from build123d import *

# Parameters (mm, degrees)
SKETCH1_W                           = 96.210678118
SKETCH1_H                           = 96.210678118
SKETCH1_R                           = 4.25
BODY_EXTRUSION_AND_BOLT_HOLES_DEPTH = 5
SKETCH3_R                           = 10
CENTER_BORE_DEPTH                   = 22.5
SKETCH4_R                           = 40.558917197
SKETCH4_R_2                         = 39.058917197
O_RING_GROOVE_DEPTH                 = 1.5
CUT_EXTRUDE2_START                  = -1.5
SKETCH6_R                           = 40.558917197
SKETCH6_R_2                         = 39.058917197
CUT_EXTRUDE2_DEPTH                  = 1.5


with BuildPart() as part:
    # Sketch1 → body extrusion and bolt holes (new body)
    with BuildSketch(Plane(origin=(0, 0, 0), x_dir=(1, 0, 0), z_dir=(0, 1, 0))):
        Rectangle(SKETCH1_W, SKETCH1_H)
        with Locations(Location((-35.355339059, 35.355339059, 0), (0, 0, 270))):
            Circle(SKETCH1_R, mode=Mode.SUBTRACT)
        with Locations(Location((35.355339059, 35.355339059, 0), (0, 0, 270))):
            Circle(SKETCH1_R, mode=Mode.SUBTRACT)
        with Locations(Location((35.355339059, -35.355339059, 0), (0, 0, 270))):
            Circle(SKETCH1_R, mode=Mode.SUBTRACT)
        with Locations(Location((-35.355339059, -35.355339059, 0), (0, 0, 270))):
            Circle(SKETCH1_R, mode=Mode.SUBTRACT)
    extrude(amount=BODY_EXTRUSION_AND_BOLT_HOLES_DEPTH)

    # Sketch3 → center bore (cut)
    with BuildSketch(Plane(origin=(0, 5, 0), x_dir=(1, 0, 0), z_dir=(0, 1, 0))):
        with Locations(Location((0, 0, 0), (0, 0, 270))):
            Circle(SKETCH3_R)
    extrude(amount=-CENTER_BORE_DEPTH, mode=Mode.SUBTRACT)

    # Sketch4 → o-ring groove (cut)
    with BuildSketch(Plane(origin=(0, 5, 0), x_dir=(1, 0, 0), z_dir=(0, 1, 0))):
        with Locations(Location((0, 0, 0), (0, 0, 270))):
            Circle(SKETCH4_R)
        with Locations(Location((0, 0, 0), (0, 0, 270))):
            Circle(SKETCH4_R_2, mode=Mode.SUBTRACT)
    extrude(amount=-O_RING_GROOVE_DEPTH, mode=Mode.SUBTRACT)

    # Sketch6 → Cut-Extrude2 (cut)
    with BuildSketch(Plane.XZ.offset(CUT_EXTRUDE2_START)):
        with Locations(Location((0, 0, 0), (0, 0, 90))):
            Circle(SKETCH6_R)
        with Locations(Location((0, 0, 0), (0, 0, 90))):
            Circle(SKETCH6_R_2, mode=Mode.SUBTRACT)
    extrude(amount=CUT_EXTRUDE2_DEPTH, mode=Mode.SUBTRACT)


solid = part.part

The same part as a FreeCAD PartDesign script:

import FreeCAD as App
import Part
import Sketcher

doc = App.newDocument("Part")
body = doc.addObject("PartDesign::Body", "Body")

# Sketch on XZ plane
sketch1 = body.newObject("Sketcher::SketchObject", "Sketch")
sketch1.AttachmentSupport = (doc.getObject("XZ_Plane"), [""])
sketch1.MapMode = "FlatFace"
sketch1.addGeometry(Part.LineSegment(App.Vector(-48.1, -48.1, 0), App.Vector(-48.1, 48.1, 0)), False)
sketch1.addGeometry(Part.LineSegment(App.Vector(-48.1, 48.1, 0), App.Vector(48.1, 48.1, 0)), False)
sketch1.addGeometry(Part.LineSegment(App.Vector(48.1, 48.1, 0), App.Vector(48.1, -48.1, 0)), False)
sketch1.addGeometry(Part.LineSegment(App.Vector(48.1, -48.1, 0), App.Vector(-48.1, -48.1, 0)), False)
sketch1.addGeometry(Part.Circle(App.Vector(-35.4, 35.4, 0), App.Vector(0, 0, 1), 4.2), False)
sketch1.addGeometry(Part.Circle(App.Vector(35.4, 35.4, 0), App.Vector(0, 0, 1), 4.2), False)
sketch1.addGeometry(Part.Circle(App.Vector(-35.4, -35.4, 0), App.Vector(0, 0, 1), 4.2), False)
sketch1.addGeometry(Part.Circle(App.Vector(35.4, -35.4, 0), App.Vector(0, 0, 1), 4.2), False)
sketch1.addConstraint(Sketcher.Constraint("Coincident", 0, 2, 1, 1))
sketch1.addConstraint(Sketcher.Constraint("Coincident", 1, 2, 2, 1))
sketch1.addConstraint(Sketcher.Constraint("Coincident", 2, 2, 3, 1))
sketch1.addConstraint(Sketcher.Constraint("Coincident", 3, 2, 0, 1))
sketch1.addConstraint(Sketcher.Constraint("Vertical", 0))
sketch1.addConstraint(Sketcher.Constraint("Horizontal", 1))
sketch1.addConstraint(Sketcher.Constraint("Vertical", 2))
sketch1.addConstraint(Sketcher.Constraint("Horizontal", 3))
sketch1.addConstraint(Sketcher.Constraint("Equal", 4, 5))
sketch1.addConstraint(Sketcher.Constraint("Equal", 5, 6))
sketch1.addConstraint(Sketcher.Constraint("Equal", 6, 7))
sketch1.addConstraint(Sketcher.Constraint("Symmetric", 5, 3, 6, 3, -1, 1))
sketch1.addConstraint(Sketcher.Constraint("Symmetric", 4, 3, 7, 3, -1, 1))
sketch1.addConstraint(Sketcher.Constraint("Symmetric", 0, 2, 2, 2, -1, 1))
sketch1.addConstraint(Sketcher.Constraint("Symmetric", 4, 3, 5, 3, -2))
sketch1.addConstraint(Sketcher.Constraint("Equal", 3, 0))
sketch1.addConstraint(Sketcher.Constraint("Diameter", 4, 8.5))
sketch1.addConstraint(Sketcher.Constraint("DistanceX", 0, 2, 4, 3, 12.75))
sketch1.addConstraint(Sketcher.Constraint("DistanceY", 4, 3, 0, 2, 12.75))
sketch1.addConstraint(Sketcher.Constraint("DistanceX", 1, 1, 1, 2, 96.210678))
pad1 = body.newObject("PartDesign::Pad", "Pad")
pad1.Profile = sketch1
pad1.Length = 5
pad1.Reversed = True

# Sketch on XZ plane
sketch2 = body.newObject("Sketcher::SketchObject", "Sketch001")
sketch2.AttachmentSupport = (doc.getObject("XZ_Plane"), [""])
sketch2.MapMode = "FlatFace"
sketch2.AttachmentOffset = App.Placement(App.Vector(0, 0, -5), App.Rotation())
sketch2.addGeometry(Part.Circle(App.Vector(0, 0, 0), App.Vector(0, 0, 1), 10), False)
sketch2.addConstraint(Sketcher.Constraint("Coincident", 0, 3, -1, 1))
sketch2.addConstraint(Sketcher.Constraint("Diameter", 0, 20.0))
pocket1 = body.newObject("PartDesign::Pocket", "Pocket")
pocket1.Profile = sketch2
pocket1.Length = 22.5
pocket1.Reversed = True

# Sketch on XZ plane
sketch3 = body.newObject("Sketcher::SketchObject", "Sketch002")
sketch3.AttachmentSupport = (doc.getObject("XZ_Plane"), [""])
sketch3.MapMode = "FlatFace"
sketch3.AttachmentOffset = App.Placement(App.Vector(0, 0, -5), App.Rotation())
sketch3.addGeometry(Part.Circle(App.Vector(0, 0, 0), App.Vector(0, 0, 1), 41), False)
sketch3.addGeometry(Part.Circle(App.Vector(0, 0, 0), App.Vector(0, 0, 1), 39), False)
sketch3.addConstraint(Sketcher.Constraint("Coincident", 0, 3, -1, 1))
sketch3.addConstraint(Sketcher.Constraint("Coincident", 1, 3, -1, 1))
sketch3.addConstraint(Sketcher.Constraint("Diameter", 0, 81.117834))
sketch3.addConstraint(Sketcher.Constraint("Diameter", 1, 78.117834))
pocket2 = body.newObject("PartDesign::Pocket", "Pocket001")
pocket2.Profile = sketch3
pocket2.Length = 1.5
pocket2.Reversed = True

# Sketch on XZ plane
sketch4 = body.newObject("Sketcher::SketchObject", "Sketch003")
sketch4.AttachmentSupport = (doc.getObject("XZ_Plane"), [""])
sketch4.MapMode = "FlatFace"
sketch4.AttachmentOffset = App.Placement(App.Vector(0, 0, -1.5), App.Rotation())
sketch4.addGeometry(Part.Circle(App.Vector(0, 0, 0), App.Vector(0, 0, 1), 41), False)
sketch4.addGeometry(Part.Circle(App.Vector(0, 0, 0), App.Vector(0, 0, 1), 39), False)
sketch4.addConstraint(Sketcher.Constraint("Coincident", 0, 3, -1, 1))
sketch4.addConstraint(Sketcher.Constraint("Coincident", 1, 3, -1, 1))
sketch4.addConstraint(Sketcher.Constraint("Diameter", 0, 81.117834))
sketch4.addConstraint(Sketcher.Constraint("Diameter", 1, 78.117834))
pocket3 = body.newObject("PartDesign::Pocket", "Pocket002")
pocket3.Profile = sketch4
pocket3.Length = 1.5
pocket3.Reversed = True

doc.recompute()
